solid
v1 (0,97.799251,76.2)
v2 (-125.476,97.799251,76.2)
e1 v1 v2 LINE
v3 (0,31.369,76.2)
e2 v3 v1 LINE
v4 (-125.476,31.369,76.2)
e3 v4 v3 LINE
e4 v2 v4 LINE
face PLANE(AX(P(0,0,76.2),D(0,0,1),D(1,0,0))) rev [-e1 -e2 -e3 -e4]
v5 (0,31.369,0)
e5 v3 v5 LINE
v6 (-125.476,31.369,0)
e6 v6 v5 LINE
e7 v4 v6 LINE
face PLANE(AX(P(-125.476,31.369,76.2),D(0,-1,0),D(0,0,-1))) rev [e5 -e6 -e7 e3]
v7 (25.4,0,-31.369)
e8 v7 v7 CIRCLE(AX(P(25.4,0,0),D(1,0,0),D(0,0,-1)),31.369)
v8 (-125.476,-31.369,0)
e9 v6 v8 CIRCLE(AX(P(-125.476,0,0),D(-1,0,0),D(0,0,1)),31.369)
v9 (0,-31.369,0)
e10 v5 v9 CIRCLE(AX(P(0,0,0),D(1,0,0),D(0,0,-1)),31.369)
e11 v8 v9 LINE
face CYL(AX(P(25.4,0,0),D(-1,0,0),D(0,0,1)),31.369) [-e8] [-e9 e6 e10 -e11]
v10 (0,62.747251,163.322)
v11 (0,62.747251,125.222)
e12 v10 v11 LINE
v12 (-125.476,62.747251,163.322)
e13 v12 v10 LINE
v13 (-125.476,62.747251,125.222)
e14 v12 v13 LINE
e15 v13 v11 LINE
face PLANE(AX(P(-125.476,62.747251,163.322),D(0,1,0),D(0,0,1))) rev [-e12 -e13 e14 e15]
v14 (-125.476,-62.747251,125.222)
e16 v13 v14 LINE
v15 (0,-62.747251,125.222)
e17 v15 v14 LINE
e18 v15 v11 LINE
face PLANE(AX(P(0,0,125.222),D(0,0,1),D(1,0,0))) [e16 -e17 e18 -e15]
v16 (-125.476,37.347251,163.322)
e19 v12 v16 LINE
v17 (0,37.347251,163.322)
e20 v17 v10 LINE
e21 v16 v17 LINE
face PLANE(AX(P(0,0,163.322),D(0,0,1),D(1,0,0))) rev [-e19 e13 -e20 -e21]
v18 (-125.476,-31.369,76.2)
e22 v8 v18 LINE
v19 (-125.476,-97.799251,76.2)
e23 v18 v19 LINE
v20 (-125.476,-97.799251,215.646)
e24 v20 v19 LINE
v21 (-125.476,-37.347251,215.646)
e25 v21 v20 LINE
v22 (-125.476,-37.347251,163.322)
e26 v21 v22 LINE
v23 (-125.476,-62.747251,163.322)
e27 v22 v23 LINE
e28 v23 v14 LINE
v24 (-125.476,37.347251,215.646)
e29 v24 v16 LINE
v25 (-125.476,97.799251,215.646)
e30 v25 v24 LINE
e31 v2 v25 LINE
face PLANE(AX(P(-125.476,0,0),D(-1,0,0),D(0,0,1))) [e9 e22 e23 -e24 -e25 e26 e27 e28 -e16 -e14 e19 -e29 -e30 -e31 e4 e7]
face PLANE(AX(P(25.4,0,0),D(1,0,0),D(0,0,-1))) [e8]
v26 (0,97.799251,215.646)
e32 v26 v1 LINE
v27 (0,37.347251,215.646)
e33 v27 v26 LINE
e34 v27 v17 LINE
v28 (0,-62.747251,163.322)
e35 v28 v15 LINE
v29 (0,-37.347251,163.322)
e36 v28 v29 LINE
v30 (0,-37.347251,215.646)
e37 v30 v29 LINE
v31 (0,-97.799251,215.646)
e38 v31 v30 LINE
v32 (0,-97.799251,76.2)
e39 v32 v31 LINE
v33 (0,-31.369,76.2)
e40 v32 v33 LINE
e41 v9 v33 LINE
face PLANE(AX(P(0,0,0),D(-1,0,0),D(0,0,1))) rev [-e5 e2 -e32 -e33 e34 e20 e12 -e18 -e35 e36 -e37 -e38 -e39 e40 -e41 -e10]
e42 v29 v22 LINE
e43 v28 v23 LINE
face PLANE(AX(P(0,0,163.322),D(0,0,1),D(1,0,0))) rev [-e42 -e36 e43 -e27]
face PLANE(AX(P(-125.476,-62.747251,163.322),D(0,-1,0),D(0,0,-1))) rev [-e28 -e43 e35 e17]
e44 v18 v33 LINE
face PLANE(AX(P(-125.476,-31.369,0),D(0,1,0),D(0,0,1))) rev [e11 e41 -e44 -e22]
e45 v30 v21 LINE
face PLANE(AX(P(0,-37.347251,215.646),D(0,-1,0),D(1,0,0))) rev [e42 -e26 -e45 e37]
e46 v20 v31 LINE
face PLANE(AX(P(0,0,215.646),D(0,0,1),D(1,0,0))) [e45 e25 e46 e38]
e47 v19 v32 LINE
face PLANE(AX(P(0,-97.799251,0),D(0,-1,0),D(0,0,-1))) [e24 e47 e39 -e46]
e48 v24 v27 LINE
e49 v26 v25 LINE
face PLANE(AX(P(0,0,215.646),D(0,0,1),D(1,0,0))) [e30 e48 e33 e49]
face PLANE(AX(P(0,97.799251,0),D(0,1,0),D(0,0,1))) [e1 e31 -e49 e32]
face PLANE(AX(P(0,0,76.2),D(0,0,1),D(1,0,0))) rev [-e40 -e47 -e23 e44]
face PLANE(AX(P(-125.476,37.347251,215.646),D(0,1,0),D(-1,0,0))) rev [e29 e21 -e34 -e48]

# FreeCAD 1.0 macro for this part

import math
import FreeCAD as App
import Part
import Sketcher

V = App.Vector
Q = App.Units.Quantity

doc = App.newDocument("Part")
body = doc.addObject("PartDesign::Body", "Body")

# Sketch on YZ plane
sketch1 = body.newObject("Sketcher::SketchObject", "Sketch")
sketch1.AttachmentSupport = (doc.getObject("YZ_Plane"), [""])
sketch1.MapMode = "FlatFace"
sketch1.addGeometry(Part.Circle(V(0, 0, 0), V(0, 0, 1), 31), False)
sketch1.addConstraint(Sketcher.Constraint("Coincident", 0, 3, -1, 1))
sketch1.addConstraint(Sketcher.Constraint("Diameter", 0, Q("2.47 in")))
pad1 = body.newObject("PartDesign::Pad", "Pad")
pad1.Profile = sketch1
pad1.Length = Q("1 in")

# Sketch on YZ plane
sketch2 = body.newObject("Sketcher::SketchObject", "Sketch001")
sketch2.AttachmentSupport = (doc.getObject("YZ_Plane"), [""])
sketch2.MapMode = "FlatFace"
sketch2.AttachmentOffset = App.Placement(V(0, 0, -4.94 * 25.4), App.Rotation())
sketch2.addGeometry(Part.LineSegment(V(-31, 0, 0), V(-31, 76, 0)), False)
sketch2.addGeometry(Part.LineSegment(V(-31, 76, 0), V(31, 76, 0)), False)
sketch2.addGeometry(Part.LineSegment(V(31, 76, 0), V(31, 0, 0)), False)
sketch2.addGeometry(Part.ArcOfCircle(Part.Circle(V(0, 0, 0), V(0, 0, 1), 31), math.radians(180), math.radians(360)), False)
sketch2.addConstraint(Sketcher.Constraint("Coincident", 0, 2, 1, 1))
sketch2.addConstraint(Sketcher.Constraint("Coincident", 1, 2, 2, 1))
sketch2.addConstraint(Sketcher.Constraint("Tangent", 2, 2, 3, 2))
sketch2.addConstraint(Sketcher.Constraint("Tangent", 3, 1, 0, 1))
sketch2.addConstraint(Sketcher.Constraint("Vertical", 0))
sketch2.addConstraint(Sketcher.Constraint("Horizontal", 1))
sketch2.addConstraint(Sketcher.Constraint("Vertical", 2))
sketch2.addConstraint(Sketcher.Constraint("Coincident", 3, 3, -1, 1))
sketch2.addConstraint(Sketcher.Constraint("DistanceY", 0, 1, 0, 2, Q("3 in")))
sketch2.addConstraint(Sketcher.Constraint("Radius", 3, Q("1.235 in")))
pad2 = body.newObject("PartDesign::Pad", "Pad001")
pad2.Profile = sketch2
pad2.Length = Q("4.94 in")

# Sketch on XY plane
sketch3 = body.newObject("Sketcher::SketchObject", "Sketch002")
sketch3.AttachmentSupport = (doc.getObject("XY_Plane"), [""])
sketch3.MapMode = "FlatFace"
sketch3.AttachmentOffset = App.Placement(V(0, 0, 3 * 25.4), App.Rotation())
sketch3.addGeometry(Part.LineSegment(V(0, 63, 0), V(-125, 63, 0)), False)
sketch3.addGeometry(Part.LineSegment(V(-125, 63, 0), V(-125, -63, 0)), False)
sketch3.addGeometry(Part.LineSegment(V(-125, -63, 0), V(0, -63, 0)), False)
sketch3.addGeometry(Part.LineSegment(V(0, -63, 0), V(0, 63, 0)), False)
sketch3.addConstraint(Sketcher.Constraint("Coincident", 0, 2, 1, 1))
sketch3.addConstraint(Sketcher.Constraint("Coincident", 1, 2, 2, 1))
sketch3.addConstraint(Sketcher.Constraint("Coincident", 2, 2, 3, 1))
sketch3.addConstraint(Sketcher.Constraint("Coincident", 3, 2, 0, 1))
sketch3.addConstraint(Sketcher.Constraint("Horizontal", 0))
sketch3.addConstraint(Sketcher.Constraint("Vertical", 1))
sketch3.addConstraint(Sketcher.Constraint("Horizontal", 2))
sketch3.addConstraint(Sketcher.Constraint("Vertical", 3))
sketch3.addConstraint(Sketcher.Constraint("Symmetric", 2, 2, 3, 2, -1, 1))
sketch3.addConstraint(Sketcher.Constraint("DistanceX", 0, 2, 0, 1, Q("4.94 in")))
sketch3.addConstraint(Sketcher.Constraint("DistanceY", 1, 2, 1, 1, 125.494502))
pad3 = body.newObject("PartDesign::Pad", "Pad002")
pad3.Profile = sketch3
pad3.Length = Q("1.93 in")

# Sketch on XZ plane
sketch4 = body.newObject("Sketcher::SketchObject", "Sketch003")
sketch4.AttachmentSupport = (doc.getObject("XZ_Plane"), [""])
sketch4.MapMode = "FlatFace"
sketch4.AttachmentOffset = App.Placement(V(0, 0, -62.747251), App.Rotation())
sketch4.addGeometry(Part.LineSegment(V(0, 125, 0), V(0, 76, 0)), False)
sketch4.addGeometry(Part.LineSegment(V(0, 76, 0), V(-125, 76, 0)), False)
sketch4.addGeometry(Part.LineSegment(V(-125, 76, 0), V(-125, 125, 0)), False)
sketch4.addGeometry(Part.LineSegment(V(-125, 125, 0), V(0, 125, 0)), False)
sketch4.addConstraint(Sketcher.Constraint("Coincident", 0, 2, 1, 1))
sketch4.addConstraint(Sketcher.Constraint("Coincident", 1, 2, 2, 1))
sketch4.addConstraint(Sketcher.Constraint("Coincident", 2, 2, 3, 1))
sketch4.addConstraint(Sketcher.Constraint("Coincident", 3, 2, 0, 1))
sketch4.addConstraint(Sketcher.Constraint("Vertical", 0))
sketch4.addConstraint(Sketcher.Constraint("Horizontal", 1))
sketch4.addConstraint(Sketcher.Constraint("Vertical", 2))
sketch4.addConstraint(Sketcher.Constraint("Horizontal", 3))
sketch4.addConstraint(Sketcher.Constraint("PointOnObject", 0, 2, -2))
sketch4.addConstraint(Sketcher.Constraint("DistanceY", -1, 1, 0, 2, Q("3 in")))
sketch4.addConstraint(Sketcher.Constraint("DistanceX", 1, 2, 1, 1, Q("4.94 in")))
sketch4.addConstraint(Sketcher.Constraint("DistanceY", 0, 2, 0, 1, Q("1.93 in")))
pad4 = body.newObject("PartDesign::Pad", "Pad003")
pad4.Profile = sketch4
pad4.Length = Q("1.38 in")
pad4.Reversed = True

# Sketch on XZ plane
sketch5 = body.newObject("Sketcher::SketchObject", "Sketch004")
sketch5.AttachmentSupport = (doc.getObject("XZ_Plane"), [""])
sketch5.MapMode = "FlatFace"
sketch5.AttachmentOffset = App.Placement(V(0, 0, 62.747251), App.Rotation())
sketch5.addGeometry(Part.LineSegment(V(-125, 125, 0), V(-125, 76, 0)), False)
sketch5.addGeometry(Part.LineSegment(V(-125, 76, 0), V(0, 76, 0)), False)
sketch5.addGeometry(Part.LineSegment(V(0, 76, 0), V(0, 125, 0)), False)
sketch5.addGeometry(Part.LineSegment(V(0, 125, 0), V(-125, 125, 0)), False)
sketch5.addConstraint(Sketcher.Constraint("Coincident", 0, 2, 1, 1))
sketch5.addConstraint(Sketcher.Constraint("Coincident", 1, 2, 2, 1))
sketch5.addConstraint(Sketcher.Constraint("Coincident", 2, 2, 3, 1))
sketch5.addConstraint(Sketcher.Constraint("Coincident", 3, 2, 0, 1))
sketch5.addConstraint(Sketcher.Constraint("Vertical", 0))
sketch5.addConstraint(Sketcher.Constraint("Horizontal", 1))
sketch5.addConstraint(Sketcher.Constraint("Vertical", 2))
sketch5.addConstraint(Sketcher.Constraint("Horizontal", 3))
sketch5.addConstraint(Sketcher.Constraint("PointOnObject", 1, 2, -2))
sketch5.addConstraint(Sketcher.Constraint("DistanceY", -1, 1, 0, 2, Q("3 in")))
sketch5.addConstraint(Sketcher.Constraint("DistanceX", 1, 1, 1, 2, Q("4.94 in")))
sketch5.addConstraint(Sketcher.Constraint("DistanceY", 0, 2, 0, 1, Q("1.93 in")))
pad5 = body.newObject("PartDesign::Pad", "Pad004")
pad5.Profile = sketch5
pad5.Length = Q("1.38 in")

# Sketch on XY plane
sketch6 = body.newObject("Sketcher::SketchObject", "Sketch005")
sketch6.AttachmentSupport = (doc.getObject("XY_Plane"), [""])
sketch6.MapMode = "FlatFace"
sketch6.AttachmentOffset = App.Placement(V(0, 0, 4.93 * 25.4), App.Rotation())
sketch6.addGeometry(Part.LineSegment(V(-125, 98, 0), V(-125, 63, 0)), False)
sketch6.addGeometry(Part.LineSegment(V(-125, 63, 0), V(0, 63, 0)), False)
sketch6.addGeometry(Part.LineSegment(V(0, 63, 0), V(0, 98, 0)), False)
sketch6.addGeometry(Part.LineSegment(V(0, 98, 0), V(-125, 98, 0)), False)
sketch6.addGeometry(Part.LineSegment(V(-125, -63, 0), V(-125, -98, 0)), False)
sketch6.addGeometry(Part.LineSegment(V(-125, -98, 0), V(0, -98, 0)), False)
sketch6.addGeometry(Part.LineSegment(V(0, -98, 0), V(0, -63, 0)), False)
sketch6.addGeometry(Part.LineSegment(V(0, -63, 0), V(-125, -63, 0)), False)
sketch6.addConstraint(Sketcher.Constraint("Coincident", 0, 2, 1, 1))
sketch6.addConstraint(Sketcher.Constraint("Coincident", 1, 2, 2, 1))
sketch6.addConstraint(Sketcher.Constraint("Coincident", 2, 2, 3, 1))
sketch6.addConstraint(Sketcher.Constraint("Coincident", 3, 2, 0, 1))
sketch6.addConstraint(Sketcher.Constraint("Coincident", 4, 2, 5, 1))
sketch6.addConstraint(Sketcher.Constraint("Coincident", 5, 2, 6, 1))
sketch6.addConstraint(Sketcher.Constraint("Coincident", 6, 2, 7, 1))
sketch6.addConstraint(Sketcher.Constraint("Coincident", 7, 2, 4, 1))
sketch6.addConstraint(Sketcher.Constraint("Vertical", 0))
sketch6.addConstraint(Sketcher.Constraint("Horizontal", 1))
sketch6.addConstraint(Sketcher.Constraint("Vertical", 2))
sketch6.addConstraint(Sketcher.Constraint("Horizontal", 3))
sketch6.addConstraint(Sketcher.Constraint("Vertical", 4))
sketch6.addConstraint(Sketcher.Constraint("Horizontal", 5))
sketch6.addConstraint(Sketcher.Constraint("Vertical", 6))
sketch6.addConstraint(Sketcher.Constraint("Horizontal", 7))
sketch6.addConstraint(Sketcher.Constraint("Symmetric", 2, 2, 5, 2, -1, 1))
sketch6.addConstraint(Sketcher.Constraint("Symmetric", 1, 2, 6, 2, -1))
sketch6.addConstraint(Sketcher.Constraint("Vertical", 3, 2, 4, 2))
sketch6.addConstraint(Sketcher.Constraint("DistanceX", 1, 1, 1, 2, Q("4.94 in")))
sketch6.addConstraint(Sketcher.Constraint("DistanceY", 0, 2, 0, 1, Q("1.38 in")))
sketch6.addConstraint(Sketcher.Constraint("DistanceY", -1, 1, 0, 2, 62.747251))
pad6 = body.newObject("PartDesign::Pad", "Pad005")
pad6.Profile = sketch6
pad6.Length = Q("1.5 in")

# Sketch on XY plane
sketch7 = body.newObject("Sketcher::SketchObject", "Sketch006")
sketch7.AttachmentSupport = (doc.getObject("XY_Plane"), [""])
sketch7.MapMode = "FlatFace"
sketch7.AttachmentOffset = App.Placement(V(0, 0, 6.43 * 25.4), App.Rotation())
sketch7.addGeometry(Part.LineSegment(V(-125, 98, 0), V(-125, 37, 0)), False)
sketch7.addGeometry(Part.LineSegment(V(-125, 37, 0), V(0, 37, 0)), False)
sketch7.addGeometry(Part.LineSegment(V(0, 37, 0), V(0, 98, 0)), False)
sketch7.addGeometry(Part.LineSegment(V(0, 98, 0), V(-125, 98, 0)), False)
sketch7.addGeometry(Part.LineSegment(V(-125, -37, 0), V(-125, -98, 0)), False)
sketch7.addGeometry(Part.LineSegment(V(-125, -98, 0), V(0, -98, 0)), False)
sketch7.addGeometry(Part.LineSegment(V(0, -98, 0), V(0, -37, 0)), False)
sketch7.addGeometry(Part.LineSegment(V(0, -37, 0), V(-125, -37, 0)), False)
sketch7.addConstraint(Sketcher.Constraint("Coincident", 0, 2, 1, 1))
sketch7.addConstraint(Sketcher.Constraint("Coincident", 1, 2, 2, 1))
sketch7.addConstraint(Sketcher.Constraint("Coincident", 2, 2, 3, 1))
sketch7.addConstraint(Sketcher.Constraint("Coincident", 3, 2, 0, 1))
sketch7.addConstraint(Sketcher.Constraint("Coincident", 4, 2, 5, 1))
sketch7.addConstraint(Sketcher.Constraint("Coincident", 5, 2, 6, 1))
sketch7.addConstraint(Sketcher.Constraint("Coincident", 6, 2, 7, 1))
sketch7.addConstraint(Sketcher.Constraint("Coincident", 7, 2, 4, 1))
sketch7.addConstraint(Sketcher.Constraint("Vertical", 0))
sketch7.addConstraint(Sketcher.Constraint("Horizontal", 1))
sketch7.addConstraint(Sketcher.Constraint("Vertical", 2))
sketch7.addConstraint(Sketcher.Constraint("Horizontal", 3))
sketch7.addConstraint(Sketcher.Constraint("Vertical", 4))
sketch7.addConstraint(Sketcher.Constraint("Horizontal", 5))
sketch7.addConstraint(Sketcher.Constraint("Vertical", 6))
sketch7.addConstraint(Sketcher.Constraint("Horizontal", 7))
sketch7.addConstraint(Sketcher.Constraint("Symmetric", 2, 2, 5, 2, -1, 1))
sketch7.addConstraint(Sketcher.Constraint("Symmetric", 1, 2, 6, 2, -1))
sketch7.addConstraint(Sketcher.Constraint("Vertical", 3, 2, 4, 2))
sketch7.addConstraint(Sketcher.Constraint("DistanceX", 1, 1, 1, 2, Q("4.94 in")))
sketch7.addConstraint(Sketcher.Constraint("DistanceY", 0, 2, 0, 1, Q("2.38 in")))
sketch7.addConstraint(Sketcher.Constraint("DistanceY", -1, 1, 0, 2, 37.347251))
pad7 = body.newObject("PartDesign::Pad", "Pad006")
pad7.Profile = sketch7
pad7.Length = Q("2.06 in")

doc.recompute()
